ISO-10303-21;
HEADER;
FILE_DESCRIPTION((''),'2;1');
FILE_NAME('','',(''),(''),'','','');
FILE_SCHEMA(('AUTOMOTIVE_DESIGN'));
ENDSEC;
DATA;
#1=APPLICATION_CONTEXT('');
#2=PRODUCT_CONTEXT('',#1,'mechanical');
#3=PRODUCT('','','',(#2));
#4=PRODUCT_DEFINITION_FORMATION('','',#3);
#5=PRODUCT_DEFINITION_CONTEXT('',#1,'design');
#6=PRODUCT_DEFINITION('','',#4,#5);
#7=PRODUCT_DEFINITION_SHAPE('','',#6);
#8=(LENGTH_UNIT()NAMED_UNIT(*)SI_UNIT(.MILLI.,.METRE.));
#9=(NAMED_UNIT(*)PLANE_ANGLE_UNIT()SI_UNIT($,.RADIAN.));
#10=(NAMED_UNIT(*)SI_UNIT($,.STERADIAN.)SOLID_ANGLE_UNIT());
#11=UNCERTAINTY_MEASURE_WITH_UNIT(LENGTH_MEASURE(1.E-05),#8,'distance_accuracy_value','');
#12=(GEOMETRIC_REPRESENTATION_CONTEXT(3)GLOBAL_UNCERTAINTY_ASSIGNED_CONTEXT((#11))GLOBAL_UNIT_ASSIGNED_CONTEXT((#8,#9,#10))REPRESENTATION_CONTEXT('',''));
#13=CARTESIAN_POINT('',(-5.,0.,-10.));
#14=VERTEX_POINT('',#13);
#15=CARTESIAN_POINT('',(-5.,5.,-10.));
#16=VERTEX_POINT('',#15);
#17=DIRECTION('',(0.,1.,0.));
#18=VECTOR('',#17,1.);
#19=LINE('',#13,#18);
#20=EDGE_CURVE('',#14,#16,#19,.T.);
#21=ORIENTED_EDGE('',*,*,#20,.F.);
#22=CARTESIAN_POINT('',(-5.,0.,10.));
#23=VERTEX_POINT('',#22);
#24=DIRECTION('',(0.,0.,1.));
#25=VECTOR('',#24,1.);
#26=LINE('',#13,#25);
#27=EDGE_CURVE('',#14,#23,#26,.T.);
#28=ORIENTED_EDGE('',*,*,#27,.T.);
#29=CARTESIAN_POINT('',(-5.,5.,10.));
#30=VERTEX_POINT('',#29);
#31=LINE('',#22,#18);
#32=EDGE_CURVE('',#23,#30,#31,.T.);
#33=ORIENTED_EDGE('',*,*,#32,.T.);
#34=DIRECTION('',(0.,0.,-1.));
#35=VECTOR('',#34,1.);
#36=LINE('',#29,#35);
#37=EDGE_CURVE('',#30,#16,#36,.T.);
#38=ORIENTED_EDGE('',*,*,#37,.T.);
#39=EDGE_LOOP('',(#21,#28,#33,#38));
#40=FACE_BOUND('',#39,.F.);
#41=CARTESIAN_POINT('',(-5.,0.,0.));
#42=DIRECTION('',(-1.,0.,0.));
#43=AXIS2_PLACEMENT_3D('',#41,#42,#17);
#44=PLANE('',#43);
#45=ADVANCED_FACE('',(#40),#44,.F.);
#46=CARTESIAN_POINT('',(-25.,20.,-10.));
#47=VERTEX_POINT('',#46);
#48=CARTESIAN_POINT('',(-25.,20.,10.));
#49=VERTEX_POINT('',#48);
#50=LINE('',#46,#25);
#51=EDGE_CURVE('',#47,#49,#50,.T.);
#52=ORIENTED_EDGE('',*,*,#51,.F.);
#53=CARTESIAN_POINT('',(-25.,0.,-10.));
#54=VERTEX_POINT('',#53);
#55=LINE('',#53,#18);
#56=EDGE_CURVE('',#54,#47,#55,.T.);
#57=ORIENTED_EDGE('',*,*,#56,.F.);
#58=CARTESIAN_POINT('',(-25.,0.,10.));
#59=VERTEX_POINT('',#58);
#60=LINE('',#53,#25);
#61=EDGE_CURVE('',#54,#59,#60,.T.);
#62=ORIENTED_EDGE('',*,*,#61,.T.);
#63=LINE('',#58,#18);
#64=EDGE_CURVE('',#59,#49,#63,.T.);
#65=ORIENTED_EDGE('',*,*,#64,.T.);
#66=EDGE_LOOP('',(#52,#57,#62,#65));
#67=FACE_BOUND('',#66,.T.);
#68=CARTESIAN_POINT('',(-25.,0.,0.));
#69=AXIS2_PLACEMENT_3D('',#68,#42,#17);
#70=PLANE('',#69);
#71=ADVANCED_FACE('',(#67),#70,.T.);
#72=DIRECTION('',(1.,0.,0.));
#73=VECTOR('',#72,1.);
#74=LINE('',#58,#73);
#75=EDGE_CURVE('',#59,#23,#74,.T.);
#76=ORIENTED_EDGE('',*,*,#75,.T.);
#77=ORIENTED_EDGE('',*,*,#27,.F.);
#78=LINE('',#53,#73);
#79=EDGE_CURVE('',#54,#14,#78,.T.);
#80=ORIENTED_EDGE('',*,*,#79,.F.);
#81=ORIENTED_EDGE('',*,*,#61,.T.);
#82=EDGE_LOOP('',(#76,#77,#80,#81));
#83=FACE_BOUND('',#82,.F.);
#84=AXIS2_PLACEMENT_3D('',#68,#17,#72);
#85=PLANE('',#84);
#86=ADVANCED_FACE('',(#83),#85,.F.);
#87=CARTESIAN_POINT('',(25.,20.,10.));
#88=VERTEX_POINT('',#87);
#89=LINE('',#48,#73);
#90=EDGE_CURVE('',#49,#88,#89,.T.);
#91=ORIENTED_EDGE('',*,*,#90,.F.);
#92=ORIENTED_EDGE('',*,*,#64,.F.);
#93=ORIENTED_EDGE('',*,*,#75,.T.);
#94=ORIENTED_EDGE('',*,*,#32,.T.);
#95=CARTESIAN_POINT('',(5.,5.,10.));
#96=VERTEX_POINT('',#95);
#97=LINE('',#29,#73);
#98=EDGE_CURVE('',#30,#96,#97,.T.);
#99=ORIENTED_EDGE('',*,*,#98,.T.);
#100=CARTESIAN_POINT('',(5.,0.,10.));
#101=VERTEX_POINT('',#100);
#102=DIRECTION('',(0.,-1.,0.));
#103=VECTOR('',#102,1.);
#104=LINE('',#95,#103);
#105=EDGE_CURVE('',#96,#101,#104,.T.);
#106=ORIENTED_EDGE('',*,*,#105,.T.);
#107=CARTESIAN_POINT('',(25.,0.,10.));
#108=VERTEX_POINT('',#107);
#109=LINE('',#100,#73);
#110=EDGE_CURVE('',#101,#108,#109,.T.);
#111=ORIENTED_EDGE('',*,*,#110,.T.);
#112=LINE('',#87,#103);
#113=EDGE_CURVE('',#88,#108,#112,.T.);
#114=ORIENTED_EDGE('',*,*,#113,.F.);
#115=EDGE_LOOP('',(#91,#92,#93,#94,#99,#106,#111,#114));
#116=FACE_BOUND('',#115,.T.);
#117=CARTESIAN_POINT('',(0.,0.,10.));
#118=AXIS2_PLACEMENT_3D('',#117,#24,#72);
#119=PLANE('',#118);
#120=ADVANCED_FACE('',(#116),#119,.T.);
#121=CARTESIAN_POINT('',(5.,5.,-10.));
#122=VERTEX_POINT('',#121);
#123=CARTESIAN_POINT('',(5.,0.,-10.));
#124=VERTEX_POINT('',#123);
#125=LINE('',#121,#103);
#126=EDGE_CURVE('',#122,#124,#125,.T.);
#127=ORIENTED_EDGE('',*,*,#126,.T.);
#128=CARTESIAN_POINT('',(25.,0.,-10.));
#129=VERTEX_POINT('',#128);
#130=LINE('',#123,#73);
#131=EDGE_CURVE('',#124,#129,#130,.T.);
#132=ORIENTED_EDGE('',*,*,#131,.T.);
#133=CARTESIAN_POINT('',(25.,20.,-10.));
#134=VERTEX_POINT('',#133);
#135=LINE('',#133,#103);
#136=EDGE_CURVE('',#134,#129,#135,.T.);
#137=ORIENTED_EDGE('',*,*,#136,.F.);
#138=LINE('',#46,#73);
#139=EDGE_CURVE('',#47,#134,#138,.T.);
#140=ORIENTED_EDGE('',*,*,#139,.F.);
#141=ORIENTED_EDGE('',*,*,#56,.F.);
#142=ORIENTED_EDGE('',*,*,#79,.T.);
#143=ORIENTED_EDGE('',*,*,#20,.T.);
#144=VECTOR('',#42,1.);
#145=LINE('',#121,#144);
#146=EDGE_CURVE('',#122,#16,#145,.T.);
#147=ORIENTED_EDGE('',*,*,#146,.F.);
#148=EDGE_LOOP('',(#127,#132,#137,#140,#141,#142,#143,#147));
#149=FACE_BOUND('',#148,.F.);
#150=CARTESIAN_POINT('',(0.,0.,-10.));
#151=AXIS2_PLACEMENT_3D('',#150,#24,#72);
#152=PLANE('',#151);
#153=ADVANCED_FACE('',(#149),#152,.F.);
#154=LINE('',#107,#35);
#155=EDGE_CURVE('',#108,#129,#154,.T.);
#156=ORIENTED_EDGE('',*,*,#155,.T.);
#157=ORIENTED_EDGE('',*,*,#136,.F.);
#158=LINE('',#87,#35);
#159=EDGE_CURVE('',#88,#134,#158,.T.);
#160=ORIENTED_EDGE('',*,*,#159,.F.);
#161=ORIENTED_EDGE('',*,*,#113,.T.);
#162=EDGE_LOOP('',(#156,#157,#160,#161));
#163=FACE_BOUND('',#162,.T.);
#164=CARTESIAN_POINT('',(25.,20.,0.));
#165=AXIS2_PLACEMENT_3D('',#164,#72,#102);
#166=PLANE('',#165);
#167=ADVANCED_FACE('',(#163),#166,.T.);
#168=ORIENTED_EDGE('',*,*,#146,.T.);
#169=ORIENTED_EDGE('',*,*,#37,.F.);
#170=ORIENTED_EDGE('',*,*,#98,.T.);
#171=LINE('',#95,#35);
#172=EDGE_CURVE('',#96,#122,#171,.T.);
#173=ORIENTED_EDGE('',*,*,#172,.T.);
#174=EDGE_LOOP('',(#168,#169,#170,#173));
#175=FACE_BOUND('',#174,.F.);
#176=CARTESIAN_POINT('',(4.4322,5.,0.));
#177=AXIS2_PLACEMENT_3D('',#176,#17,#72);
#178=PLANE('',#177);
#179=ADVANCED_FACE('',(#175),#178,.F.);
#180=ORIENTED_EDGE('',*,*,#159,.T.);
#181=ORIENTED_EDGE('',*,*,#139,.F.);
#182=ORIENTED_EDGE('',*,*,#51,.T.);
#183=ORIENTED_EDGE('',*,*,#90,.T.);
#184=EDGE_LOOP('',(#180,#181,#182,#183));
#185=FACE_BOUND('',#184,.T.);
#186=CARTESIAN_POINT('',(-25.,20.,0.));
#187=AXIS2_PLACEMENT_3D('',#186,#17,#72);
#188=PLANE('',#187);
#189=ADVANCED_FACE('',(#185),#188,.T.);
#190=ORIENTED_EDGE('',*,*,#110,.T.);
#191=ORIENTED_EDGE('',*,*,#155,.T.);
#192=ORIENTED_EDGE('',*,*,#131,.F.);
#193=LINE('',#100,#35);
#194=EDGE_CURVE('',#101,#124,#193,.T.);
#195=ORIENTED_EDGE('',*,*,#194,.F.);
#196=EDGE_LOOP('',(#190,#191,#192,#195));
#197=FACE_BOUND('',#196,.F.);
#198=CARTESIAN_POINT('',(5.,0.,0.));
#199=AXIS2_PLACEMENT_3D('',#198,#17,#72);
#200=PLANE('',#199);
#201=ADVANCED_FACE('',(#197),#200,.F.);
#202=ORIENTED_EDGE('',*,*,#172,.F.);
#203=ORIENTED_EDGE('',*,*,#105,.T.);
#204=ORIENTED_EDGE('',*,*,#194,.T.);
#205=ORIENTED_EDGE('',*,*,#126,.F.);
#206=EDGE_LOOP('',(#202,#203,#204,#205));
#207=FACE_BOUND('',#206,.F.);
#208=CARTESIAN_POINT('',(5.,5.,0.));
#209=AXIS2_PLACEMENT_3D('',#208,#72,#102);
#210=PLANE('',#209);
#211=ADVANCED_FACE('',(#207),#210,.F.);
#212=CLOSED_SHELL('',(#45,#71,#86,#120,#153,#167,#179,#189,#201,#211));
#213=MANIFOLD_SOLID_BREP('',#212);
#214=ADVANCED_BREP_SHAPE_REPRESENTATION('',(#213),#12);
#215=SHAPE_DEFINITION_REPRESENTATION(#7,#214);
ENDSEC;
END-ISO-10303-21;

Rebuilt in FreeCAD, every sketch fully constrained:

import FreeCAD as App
import Part
import Sketcher

doc = App.newDocument("Part")
body = doc.addObject("PartDesign::Body", "Body")

# Sketch on XY plane
sketch1 = body.newObject("Sketcher::SketchObject", "Sketch")
sketch1.AttachmentSupport = (doc.getObject("XY_Plane"), [""])
sketch1.MapMode = "FlatFace"
sketch1.addGeometry([
    Part.LineSegment(App.Vector(25, 20, 0), App.Vector(-25, 20, 0)),  # 0
    Part.LineSegment(App.Vector(-25, 20, 0), App.Vector(-25, 0, 0)),  # 1
    Part.LineSegment(App.Vector(-25, 0, 0), App.Vector(-5, 0, 0)),  # 2
    Part.LineSegment(App.Vector(-5, 0, 0), App.Vector(-5, 5, 0)),  # 3
    Part.LineSegment(App.Vector(-5, 5, 0), App.Vector(5, 5, 0)),  # 4
    Part.LineSegment(App.Vector(5, 5, 0), App.Vector(5, 0, 0)),  # 5
    Part.LineSegment(App.Vector(5, 0, 0), App.Vector(25, 0, 0)),  # 6
    Part.LineSegment(App.Vector(25, 0, 0), App.Vector(25, 20, 0)),  # 7
], False)
sketch1.addConstraint([
    Sketcher.Constraint("Coincident", 0, 2, 1, 1),
    Sketcher.Constraint("Coincident", 1, 2, 2, 1),
    Sketcher.Constraint("Coincident", 2, 2, 3, 1),
    Sketcher.Constraint("Coincident", 3, 2, 4, 1),
    Sketcher.Constraint("Coincident", 4, 2, 5, 1),
    Sketcher.Constraint("Coincident", 5, 2, 6, 1),
    Sketcher.Constraint("Coincident", 6, 2, 7, 1),
    Sketcher.Constraint("Coincident", 7, 2, 0, 1),
    Sketcher.Constraint("Horizontal", 0),
    Sketcher.Constraint("Vertical", 1),
    Sketcher.Constraint("Horizontal", 2),
    Sketcher.Constraint("Vertical", 3),
    Sketcher.Constraint("Horizontal", 4),
    Sketcher.Constraint("Vertical", 5),
    Sketcher.Constraint("Horizontal", 6),
    Sketcher.Constraint("Vertical", 7),
    Sketcher.Constraint("Symmetric", 2, 2, 5, 2, -1, 1),
    Sketcher.Constraint("Symmetric", 1, 2, 6, 2, -2),
    Sketcher.Constraint("Equal", 6, 1),
    Sketcher.Constraint("DistanceX", 0, 2, 0, 1, 50.0),
    Sketcher.Constraint("DistanceX", 2, 1, 2, 2, 20.0),
    Sketcher.Constraint("DistanceY", 3, 1, 3, 2, 5.0),
])
pad1 = body.newObject("PartDesign::Pad", "Pad")
pad1.Profile = sketch1
pad1.Length = 20
pad1.Midplane = True

doc.recompute()
